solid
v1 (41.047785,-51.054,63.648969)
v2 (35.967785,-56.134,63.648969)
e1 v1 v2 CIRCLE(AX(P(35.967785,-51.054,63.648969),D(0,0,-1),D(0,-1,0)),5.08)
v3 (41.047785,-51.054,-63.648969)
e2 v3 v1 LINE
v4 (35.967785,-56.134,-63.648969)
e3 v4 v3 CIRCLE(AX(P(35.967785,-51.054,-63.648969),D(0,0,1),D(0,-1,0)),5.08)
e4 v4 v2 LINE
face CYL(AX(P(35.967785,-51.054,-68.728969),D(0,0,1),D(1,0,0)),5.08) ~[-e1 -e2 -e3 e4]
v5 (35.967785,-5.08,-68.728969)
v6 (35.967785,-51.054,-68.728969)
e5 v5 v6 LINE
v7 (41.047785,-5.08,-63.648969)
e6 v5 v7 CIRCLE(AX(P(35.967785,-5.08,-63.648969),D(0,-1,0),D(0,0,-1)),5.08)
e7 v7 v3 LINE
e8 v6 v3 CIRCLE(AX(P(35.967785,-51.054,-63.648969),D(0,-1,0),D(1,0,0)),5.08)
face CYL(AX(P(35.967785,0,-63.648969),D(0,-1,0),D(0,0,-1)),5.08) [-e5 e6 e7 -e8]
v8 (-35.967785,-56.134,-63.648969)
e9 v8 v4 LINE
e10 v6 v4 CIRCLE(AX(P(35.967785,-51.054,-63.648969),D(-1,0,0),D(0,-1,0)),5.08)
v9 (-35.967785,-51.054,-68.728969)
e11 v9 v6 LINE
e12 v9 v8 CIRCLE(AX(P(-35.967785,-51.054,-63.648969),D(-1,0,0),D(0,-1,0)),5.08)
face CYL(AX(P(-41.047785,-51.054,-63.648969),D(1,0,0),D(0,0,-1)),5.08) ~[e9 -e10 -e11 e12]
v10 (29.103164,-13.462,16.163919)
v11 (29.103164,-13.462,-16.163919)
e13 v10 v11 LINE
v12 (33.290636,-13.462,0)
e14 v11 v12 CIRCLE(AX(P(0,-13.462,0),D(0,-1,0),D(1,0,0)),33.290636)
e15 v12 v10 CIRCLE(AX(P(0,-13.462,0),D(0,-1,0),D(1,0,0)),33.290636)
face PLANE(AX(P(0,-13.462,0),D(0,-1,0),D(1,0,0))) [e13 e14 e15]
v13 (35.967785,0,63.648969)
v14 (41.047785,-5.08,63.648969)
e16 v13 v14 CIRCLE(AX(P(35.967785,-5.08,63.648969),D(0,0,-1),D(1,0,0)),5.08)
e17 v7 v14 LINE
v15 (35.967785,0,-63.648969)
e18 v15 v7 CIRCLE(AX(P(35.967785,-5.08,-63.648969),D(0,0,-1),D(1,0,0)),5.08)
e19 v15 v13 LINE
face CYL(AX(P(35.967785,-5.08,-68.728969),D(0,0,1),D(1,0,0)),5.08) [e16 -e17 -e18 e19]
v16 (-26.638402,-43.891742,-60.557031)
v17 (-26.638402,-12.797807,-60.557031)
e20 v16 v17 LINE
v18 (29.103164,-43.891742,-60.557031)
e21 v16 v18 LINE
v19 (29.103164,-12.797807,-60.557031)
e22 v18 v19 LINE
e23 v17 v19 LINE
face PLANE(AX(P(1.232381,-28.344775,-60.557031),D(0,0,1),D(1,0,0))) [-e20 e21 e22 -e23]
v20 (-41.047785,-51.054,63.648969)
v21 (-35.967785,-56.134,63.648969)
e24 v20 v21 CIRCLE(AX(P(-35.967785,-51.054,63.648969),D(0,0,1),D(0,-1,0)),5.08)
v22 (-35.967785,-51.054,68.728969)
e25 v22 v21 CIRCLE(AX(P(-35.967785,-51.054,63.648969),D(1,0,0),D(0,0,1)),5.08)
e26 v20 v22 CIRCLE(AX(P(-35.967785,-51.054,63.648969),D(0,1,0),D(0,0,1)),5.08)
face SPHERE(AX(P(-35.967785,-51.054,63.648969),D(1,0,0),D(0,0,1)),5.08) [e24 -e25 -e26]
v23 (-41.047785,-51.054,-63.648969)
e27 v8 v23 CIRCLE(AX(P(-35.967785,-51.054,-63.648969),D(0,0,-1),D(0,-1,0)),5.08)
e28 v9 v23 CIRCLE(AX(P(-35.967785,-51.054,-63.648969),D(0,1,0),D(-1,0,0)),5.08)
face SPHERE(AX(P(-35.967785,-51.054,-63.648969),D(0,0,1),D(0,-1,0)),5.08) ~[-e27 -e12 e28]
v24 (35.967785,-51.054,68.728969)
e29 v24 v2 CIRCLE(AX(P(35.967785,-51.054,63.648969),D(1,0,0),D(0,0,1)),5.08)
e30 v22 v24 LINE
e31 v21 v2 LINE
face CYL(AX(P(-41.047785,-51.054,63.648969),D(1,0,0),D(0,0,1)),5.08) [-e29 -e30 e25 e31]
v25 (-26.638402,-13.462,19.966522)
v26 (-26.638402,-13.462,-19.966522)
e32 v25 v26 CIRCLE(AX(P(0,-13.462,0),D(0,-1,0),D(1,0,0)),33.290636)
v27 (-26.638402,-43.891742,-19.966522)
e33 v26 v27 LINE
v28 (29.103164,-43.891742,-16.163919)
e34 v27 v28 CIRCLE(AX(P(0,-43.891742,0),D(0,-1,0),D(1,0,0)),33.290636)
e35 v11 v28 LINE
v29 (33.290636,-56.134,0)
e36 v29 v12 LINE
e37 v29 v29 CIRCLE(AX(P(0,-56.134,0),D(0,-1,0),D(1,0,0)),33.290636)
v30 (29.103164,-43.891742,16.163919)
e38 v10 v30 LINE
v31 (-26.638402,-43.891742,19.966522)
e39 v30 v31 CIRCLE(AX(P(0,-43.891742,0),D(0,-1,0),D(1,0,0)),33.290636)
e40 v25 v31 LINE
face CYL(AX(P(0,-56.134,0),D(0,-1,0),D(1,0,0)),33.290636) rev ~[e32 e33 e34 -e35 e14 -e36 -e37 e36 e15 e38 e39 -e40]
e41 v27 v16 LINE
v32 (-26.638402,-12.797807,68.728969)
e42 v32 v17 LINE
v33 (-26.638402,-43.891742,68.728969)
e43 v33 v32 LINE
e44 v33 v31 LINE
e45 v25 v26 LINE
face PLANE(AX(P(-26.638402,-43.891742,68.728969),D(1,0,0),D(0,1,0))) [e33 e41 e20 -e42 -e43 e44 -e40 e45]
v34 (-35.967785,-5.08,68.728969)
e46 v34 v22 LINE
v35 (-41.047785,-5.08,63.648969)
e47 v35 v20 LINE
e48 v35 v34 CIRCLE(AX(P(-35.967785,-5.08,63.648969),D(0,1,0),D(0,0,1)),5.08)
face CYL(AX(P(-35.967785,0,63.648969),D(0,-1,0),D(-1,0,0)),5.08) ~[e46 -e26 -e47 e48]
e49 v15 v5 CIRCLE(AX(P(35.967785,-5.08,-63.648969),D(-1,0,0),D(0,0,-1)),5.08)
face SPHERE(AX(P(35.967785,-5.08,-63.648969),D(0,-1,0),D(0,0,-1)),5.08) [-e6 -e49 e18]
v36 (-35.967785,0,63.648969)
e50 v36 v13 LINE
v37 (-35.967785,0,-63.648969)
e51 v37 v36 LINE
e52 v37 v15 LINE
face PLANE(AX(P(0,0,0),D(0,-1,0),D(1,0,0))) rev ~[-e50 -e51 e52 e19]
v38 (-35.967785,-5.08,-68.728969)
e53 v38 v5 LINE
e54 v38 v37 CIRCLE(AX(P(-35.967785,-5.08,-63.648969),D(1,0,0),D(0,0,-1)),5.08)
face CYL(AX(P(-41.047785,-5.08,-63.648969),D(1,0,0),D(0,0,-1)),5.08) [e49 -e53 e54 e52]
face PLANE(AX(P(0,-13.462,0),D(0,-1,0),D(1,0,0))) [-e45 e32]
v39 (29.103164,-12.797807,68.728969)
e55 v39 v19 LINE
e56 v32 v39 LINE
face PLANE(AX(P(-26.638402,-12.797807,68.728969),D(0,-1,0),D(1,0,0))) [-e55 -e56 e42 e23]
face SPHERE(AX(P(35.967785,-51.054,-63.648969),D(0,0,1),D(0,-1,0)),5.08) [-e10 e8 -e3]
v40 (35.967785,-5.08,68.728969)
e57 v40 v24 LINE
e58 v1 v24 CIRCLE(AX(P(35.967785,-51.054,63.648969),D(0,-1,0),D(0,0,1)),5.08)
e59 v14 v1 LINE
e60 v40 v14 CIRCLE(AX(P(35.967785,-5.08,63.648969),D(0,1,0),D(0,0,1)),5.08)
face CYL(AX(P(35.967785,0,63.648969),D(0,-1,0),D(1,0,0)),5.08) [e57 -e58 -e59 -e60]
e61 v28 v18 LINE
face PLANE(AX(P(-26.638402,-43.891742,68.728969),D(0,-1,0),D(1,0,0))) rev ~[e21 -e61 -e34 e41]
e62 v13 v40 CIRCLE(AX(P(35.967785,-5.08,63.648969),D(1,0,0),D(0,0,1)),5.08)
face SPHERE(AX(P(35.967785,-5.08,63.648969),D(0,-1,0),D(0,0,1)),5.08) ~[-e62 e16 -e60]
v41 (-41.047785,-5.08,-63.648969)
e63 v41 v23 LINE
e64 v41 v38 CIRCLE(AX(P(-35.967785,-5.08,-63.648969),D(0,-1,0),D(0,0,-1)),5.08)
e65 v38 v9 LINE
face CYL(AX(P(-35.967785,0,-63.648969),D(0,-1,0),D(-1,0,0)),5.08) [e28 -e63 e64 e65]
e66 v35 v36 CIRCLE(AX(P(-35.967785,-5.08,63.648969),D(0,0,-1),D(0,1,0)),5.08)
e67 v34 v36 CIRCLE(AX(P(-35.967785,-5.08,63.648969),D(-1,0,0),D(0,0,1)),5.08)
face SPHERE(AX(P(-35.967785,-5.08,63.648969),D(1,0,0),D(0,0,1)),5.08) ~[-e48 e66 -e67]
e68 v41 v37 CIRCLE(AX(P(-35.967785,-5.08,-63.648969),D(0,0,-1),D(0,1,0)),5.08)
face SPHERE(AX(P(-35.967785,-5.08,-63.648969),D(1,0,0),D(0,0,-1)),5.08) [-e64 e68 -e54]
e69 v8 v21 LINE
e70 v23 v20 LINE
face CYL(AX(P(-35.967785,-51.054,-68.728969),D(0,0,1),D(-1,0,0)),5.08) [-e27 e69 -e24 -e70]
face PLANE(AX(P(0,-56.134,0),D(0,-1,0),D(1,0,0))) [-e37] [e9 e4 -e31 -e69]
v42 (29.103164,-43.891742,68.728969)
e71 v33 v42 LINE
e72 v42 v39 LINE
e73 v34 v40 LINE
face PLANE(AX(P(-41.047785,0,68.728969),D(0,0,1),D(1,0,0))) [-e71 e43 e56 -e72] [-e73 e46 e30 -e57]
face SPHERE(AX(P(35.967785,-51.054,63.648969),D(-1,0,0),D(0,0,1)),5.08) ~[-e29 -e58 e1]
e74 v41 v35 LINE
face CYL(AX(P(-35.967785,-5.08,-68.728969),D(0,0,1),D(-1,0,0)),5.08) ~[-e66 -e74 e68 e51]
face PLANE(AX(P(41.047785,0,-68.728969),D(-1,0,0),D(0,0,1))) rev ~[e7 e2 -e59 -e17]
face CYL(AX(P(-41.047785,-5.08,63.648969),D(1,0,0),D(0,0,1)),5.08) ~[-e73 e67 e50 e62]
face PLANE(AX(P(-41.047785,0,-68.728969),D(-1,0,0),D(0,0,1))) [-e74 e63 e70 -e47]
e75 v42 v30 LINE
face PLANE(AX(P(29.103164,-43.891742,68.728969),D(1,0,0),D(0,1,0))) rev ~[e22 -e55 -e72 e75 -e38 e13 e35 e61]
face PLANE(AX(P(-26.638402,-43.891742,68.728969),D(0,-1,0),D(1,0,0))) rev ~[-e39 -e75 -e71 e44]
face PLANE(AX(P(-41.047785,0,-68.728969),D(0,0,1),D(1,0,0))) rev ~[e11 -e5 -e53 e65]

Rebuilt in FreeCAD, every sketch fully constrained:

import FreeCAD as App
import Part
import Sketcher
Q = App.Units.Quantity

doc = App.newDocument("Part")
body = doc.addObject("PartDesign::Body", "Body")

# Sketch on XZ plane
sketch1 = doc.addObject("Sketcher::SketchObject", "Sketch")
body.addObject(sketch1)
sketch1.AttachmentSupport = (doc.XZ_Plane, [""])
sketch1.MapMode = "FlatFace"
sketch1.addGeometry([
    Part.LineSegment(App.Vector(-41, 69, 0), App.Vector(-41, -69, 0)),
    Part.LineSegment(App.Vector(-41, -69, 0), App.Vector(41, -69, 0)),
    Part.LineSegment(App.Vector(41, -69, 0), App.Vector(41, 69, 0)),
    Part.LineSegment(App.Vector(41, 69, 0), App.Vector(-41, 69, 0)),
], False)
sketch1.addConstraint([
    Sketcher.Constraint("Coincident", 0, 2, 1, 1),
    Sketcher.Constraint("Coincident", 1, 2, 2, 1),
    Sketcher.Constraint("Coincident", 2, 2, 3, 1),
    Sketcher.Constraint("Coincident", 3, 2, 0, 1),
    Sketcher.Constraint("Vertical", 0),
    Sketcher.Constraint("Horizontal", 1),
    Sketcher.Constraint("Vertical", 2),
    Sketcher.Constraint("Horizontal", 3),
    Sketcher.Constraint("Symmetric", 0, 2, 2, 2, -1, 1),
    Sketcher.Constraint("DistanceX", 1, 1, 1, 2, 82.09557),
    Sketcher.Constraint("DistanceY", 0, 2, 0, 1, 137.457938),
])
pad1 = doc.addObject("PartDesign::Pad", "Pad")
body.addObject(pad1)
pad1.Profile = sketch1
pad1.Length = Q("2.21 in")
doc.recompute()

fillet = doc.addObject("PartDesign::Fillet", "Fillet")
body.addObject(fillet)
fillet.Base = (pad1, ["Edge1"])
fillet.UseAllEdges = True
fillet.Radius = Q("0.2 in")

# Sketch on XY plane
sketch2 = doc.addObject("Sketcher::SketchObject", "Sketch001")
body.addObject(sketch2)
sketch2.AttachmentSupport = (doc.XY_Plane, [""])
sketch2.MapMode = "FlatFace"
sketch2.AttachmentOffset = App.Placement(App.Vector(0, 0, 68.728969), App.Rotation())
sketch2.addGeometry([
    Part.LineSegment(App.Vector(-27, -13, 0), App.Vector(-27, -44, 0)),
    Part.LineSegment(App.Vector(-27, -44, 0), App.Vector(29, -44, 0)),
    Part.LineSegment(App.Vector(29, -44, 0), App.Vector(29, -13, 0)),
    Part.LineSegment(App.Vector(29, -13, 0), App.Vector(-27, -13, 0)),
], False)
sketch2.addConstraint([
    Sketcher.Constraint("Coincident", 0, 2, 1, 1),
    Sketcher.Constraint("Coincident", 1, 2, 2, 1),
    Sketcher.Constraint("Coincident", 2, 2, 3, 1),
    Sketcher.Constraint("Coincident", 3, 2, 0, 1),
    Sketcher.Constraint("Vertical", 0),
    Sketcher.Constraint("Horizontal", 1),
    Sketcher.Constraint("Vertical", 2),
    Sketcher.Constraint("Horizontal", 3),
    Sketcher.Constraint("DistanceX", 0, 2, -1, 1, 26.638402),
    Sketcher.Constraint("DistanceX", 1, 1, 1, 2, 55.741566),
    Sketcher.Constraint("DistanceY", 0, 2, 0, 1, 31.093935),
    Sketcher.Constraint("DistanceY", 0, 2, -1, 1, 43.891742),
])
pocket1 = doc.addObject("PartDesign::Pocket", "Pocket")
body.addObject(pocket1)
pocket1.Profile = sketch2
pocket1.Length = Q("5.09 in")

# Sketch on XZ plane
sketch3 = doc.addObject("Sketcher::SketchObject", "Sketch002")
body.addObject(sketch3)
sketch3.AttachmentSupport = (doc.XZ_Plane, [""])
sketch3.MapMode = "FlatFace"
sketch3.AttachmentOffset = App.Placement(App.Vector(0, 0, 2.21 * 25.4), App.Rotation())
sketch3.addGeometry(Part.Circle(App.Vector(0, 0, 0), App.Vector(0, 0, 1), 33), False)
sketch3.addConstraint([
    Sketcher.Constraint("Coincident", 0, 3, -1, 1),
    Sketcher.Constraint("Diameter", 0, 66.581272),
])
pocket2 = doc.addObject("PartDesign::Pocket", "Pocket001")
body.addObject(pocket2)
pocket2.Profile = sketch3
pocket2.Length = Q("1.68 in")

doc.recompute()
